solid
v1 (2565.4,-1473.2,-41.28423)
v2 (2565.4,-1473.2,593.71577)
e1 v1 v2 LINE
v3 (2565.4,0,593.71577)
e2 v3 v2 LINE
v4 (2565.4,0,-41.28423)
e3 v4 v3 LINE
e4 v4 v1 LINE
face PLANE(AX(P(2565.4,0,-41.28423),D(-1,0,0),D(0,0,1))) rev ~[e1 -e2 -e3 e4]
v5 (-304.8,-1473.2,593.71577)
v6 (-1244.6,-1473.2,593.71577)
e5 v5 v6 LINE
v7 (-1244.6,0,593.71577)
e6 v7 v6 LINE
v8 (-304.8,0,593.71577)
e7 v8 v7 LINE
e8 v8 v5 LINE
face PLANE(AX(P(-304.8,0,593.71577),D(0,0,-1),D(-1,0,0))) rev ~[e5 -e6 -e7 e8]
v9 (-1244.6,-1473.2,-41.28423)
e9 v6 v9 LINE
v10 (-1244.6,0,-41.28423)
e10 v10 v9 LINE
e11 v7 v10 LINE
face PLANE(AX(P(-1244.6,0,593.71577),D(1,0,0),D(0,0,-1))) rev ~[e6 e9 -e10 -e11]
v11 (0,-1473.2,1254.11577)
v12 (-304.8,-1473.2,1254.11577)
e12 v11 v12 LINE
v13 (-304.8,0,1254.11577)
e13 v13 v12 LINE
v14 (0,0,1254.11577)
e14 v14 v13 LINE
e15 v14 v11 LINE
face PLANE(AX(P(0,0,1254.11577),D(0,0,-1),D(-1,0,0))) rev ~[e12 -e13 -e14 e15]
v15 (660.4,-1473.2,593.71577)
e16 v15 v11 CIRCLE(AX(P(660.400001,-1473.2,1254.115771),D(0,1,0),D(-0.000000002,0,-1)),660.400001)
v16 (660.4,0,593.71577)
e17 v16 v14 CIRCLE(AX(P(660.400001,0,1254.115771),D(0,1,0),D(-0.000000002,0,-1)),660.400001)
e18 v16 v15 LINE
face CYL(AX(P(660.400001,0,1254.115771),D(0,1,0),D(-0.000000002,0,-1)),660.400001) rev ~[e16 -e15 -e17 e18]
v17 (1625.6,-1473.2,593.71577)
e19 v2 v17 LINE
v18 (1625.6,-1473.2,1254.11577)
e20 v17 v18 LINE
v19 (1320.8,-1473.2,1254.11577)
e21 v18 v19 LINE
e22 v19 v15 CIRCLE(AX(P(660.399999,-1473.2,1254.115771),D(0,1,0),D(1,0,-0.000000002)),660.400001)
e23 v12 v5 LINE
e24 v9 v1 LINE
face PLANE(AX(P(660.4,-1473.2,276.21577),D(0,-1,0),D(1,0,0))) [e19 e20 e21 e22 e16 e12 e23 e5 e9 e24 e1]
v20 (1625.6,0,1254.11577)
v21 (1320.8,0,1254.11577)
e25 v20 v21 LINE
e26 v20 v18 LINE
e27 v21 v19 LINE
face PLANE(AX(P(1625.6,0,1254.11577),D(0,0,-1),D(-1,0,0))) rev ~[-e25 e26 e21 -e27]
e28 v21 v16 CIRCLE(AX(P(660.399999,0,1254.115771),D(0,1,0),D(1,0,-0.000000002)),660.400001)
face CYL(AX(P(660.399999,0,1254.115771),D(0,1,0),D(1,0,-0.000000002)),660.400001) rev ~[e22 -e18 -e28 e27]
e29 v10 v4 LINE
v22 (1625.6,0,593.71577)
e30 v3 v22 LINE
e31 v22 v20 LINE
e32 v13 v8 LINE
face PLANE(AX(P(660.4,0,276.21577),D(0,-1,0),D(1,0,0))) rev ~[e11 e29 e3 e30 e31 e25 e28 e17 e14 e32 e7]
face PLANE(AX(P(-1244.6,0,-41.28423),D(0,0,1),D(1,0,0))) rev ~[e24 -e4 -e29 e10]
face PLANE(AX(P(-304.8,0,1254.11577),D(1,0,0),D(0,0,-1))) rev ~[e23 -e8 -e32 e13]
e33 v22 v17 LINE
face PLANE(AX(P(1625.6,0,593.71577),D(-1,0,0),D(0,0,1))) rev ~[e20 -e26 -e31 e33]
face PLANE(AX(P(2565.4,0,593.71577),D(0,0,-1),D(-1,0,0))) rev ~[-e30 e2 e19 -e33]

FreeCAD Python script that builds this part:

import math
import FreeCAD as App
import Part
import Sketcher
Q = App.Units.Quantity

doc = App.newDocument("Part")
params = doc.addObject("Spreadsheet::Sheet", "Params")
for row, (alias, value) in enumerate([
    ("sketch1_radius", "26 in"),
    ("sketch1_width", "150 in"),
    ("sketch1_width2", "37 in"),
    ("sketch1_height", "25 in"),
    ("pad1_length", "58 in"),
], start=1):
    params.set(f"A{row}", alias)
    params.set(f"B{row}", "=" + value)
    params.setAlias(f"B{row}", alias)

body = doc.addObject("PartDesign::Body", "Body")

# Sketch on XZ plane
sketch1 = body.newObject("Sketcher::SketchObject", "Sketch")
sketch1.AttachmentSupport = (doc.getObject("XZ_Plane"), [""])
sketch1.MapMode = "FlatFace"
sketch1.addGeometry(Part.LineSegment(App.Vector(-1245, 594, 0), App.Vector(-1245, -41, 0)), False)
sketch1.addGeometry(Part.LineSegment(App.Vector(-1245, -41, 0), App.Vector(2565, -41, 0)), False)
sketch1.addGeometry(Part.LineSegment(App.Vector(2565, -41, 0), App.Vector(2565, 594, 0)), False)
sketch1.addGeometry(Part.LineSegment(App.Vector(2565, 594, 0), App.Vector(1626, 594, 0)), False)
sketch1.addGeometry(Part.LineSegment(App.Vector(1626, 594, 0), App.Vector(1626, 1254, 0)), False)
sketch1.addGeometry(Part.LineSegment(App.Vector(1626, 1254, 0), App.Vector(1321, 1254, 0)), False)
sketch1.addGeometry(Part.ArcOfCircle(Part.Circle(App.Vector(660, 1254, 0), App.Vector(0, 0, 1), 660), math.radians(-90), math.radians(0)), False)
sketch1.addGeometry(Part.ArcOfCircle(Part.Circle(App.Vector(660, 1254, 0), App.Vector(0, 0, 1), 660), math.radians(-180), math.radians(-90)), False)
sketch1.addGeometry(Part.LineSegment(App.Vector(0, 1254, 0), App.Vector(-305, 1254, 0)), False)
sketch1.addGeometry(Part.LineSegment(App.Vector(-305, 1254, 0), App.Vector(-305, 594, 0)), False)
sketch1.addGeometry(Part.LineSegment(App.Vector(-305, 594, 0), App.Vector(-1245, 594, 0)), False)
sketch1.addConstraint(Sketcher.Constraint("Coincident", 0, 2, 1, 1))
sketch1.addConstraint(Sketcher.Constraint("Coincident", 1, 2, 2, 1))
sketch1.addConstraint(Sketcher.Constraint("Coincident", 2, 2, 3, 1))
sketch1.addConstraint(Sketcher.Constraint("Coincident", 3, 2, 4, 1))
sketch1.addConstraint(Sketcher.Constraint("Coincident", 4, 2, 5, 1))
sketch1.addConstraint(Sketcher.Constraint("Coincident", 5, 2, 6, 2))
sketch1.addConstraint(Sketcher.Constraint("Coincident", 6, 1, 7, 2))
sketch1.addConstraint(Sketcher.Constraint("Coincident", 7, 1, 8, 1))
sketch1.addConstraint(Sketcher.Constraint("Coincident", 8, 2, 9, 1))
sketch1.addConstraint(Sketcher.Constraint("Coincident", 9, 2, 10, 1))
sketch1.addConstraint(Sketcher.Constraint("Coincident", 10, 2, 0, 1))
sketch1.addConstraint(Sketcher.Constraint("Vertical", 0))
sketch1.addConstraint(Sketcher.Constraint("Horizontal", 1))
sketch1.addConstraint(Sketcher.Constraint("Vertical", 2))
sketch1.addConstraint(Sketcher.Constraint("Horizontal", 3))
sketch1.addConstraint(Sketcher.Constraint("Vertical", 4))
sketch1.addConstraint(Sketcher.Constraint("Horizontal", 5))
sketch1.addConstraint(Sketcher.Constraint("Horizontal", 8))
sketch1.addConstraint(Sketcher.Constraint("Vertical", 9))
sketch1.addConstraint(Sketcher.Constraint("Horizontal", 10))
sketch1.addConstraint(Sketcher.Constraint("Coincident", 7, 3, 6, 3))
sketch1.addConstraint(Sketcher.Constraint("PointOnObject", 7, 1, -2))
sketch1.addConstraint(Sketcher.Constraint("Horizontal", 7, 3, 4, 2))
sketch1.addConstraint(Sketcher.Constraint("Horizontal", 3, 2, 6, 1))
sketch1.addConstraint(Sketcher.Constraint("Horizontal", 6, 1, 9, 2))
sketch1.addConstraint(Sketcher.Constraint("Vertical", 7, 3, 6, 1))
sketch1.addConstraint(Sketcher.Constraint("Equal", 5, 8))
sketch1.addConstraint(Sketcher.Constraint("Equal", 3, 10))
sketch1.addConstraint(Sketcher.Constraint("Equal", 4, 9))
sketch1.addConstraint(Sketcher.Constraint("Radius", 6, Q("26 in")))
sketch1.addConstraint(Sketcher.Constraint("DistanceX", 1, 1, 1, 2, Q("150 in")))
sketch1.addConstraint(Sketcher.Constraint("DistanceX", 3, 2, 3, 1, Q("37 in")))
sketch1.addConstraint(Sketcher.Constraint("DistanceY", 0, 2, 0, 1, Q("25 in")))
sketch1.addConstraint(Sketcher.Constraint("DistanceY", -1, 1, 6, 3, Q("1254.115771 mm")))
sketch1.setExpression("Constraints[29]", "Params.sketch1_radius")
sketch1.setExpression("Constraints[30]", "Params.sketch1_width")
sketch1.setExpression("Constraints[31]", "Params.sketch1_width2")
sketch1.setExpression("Constraints[32]", "Params.sketch1_height")
pad1 = body.newObject("PartDesign::Pad", "Pad")
pad1.Profile = sketch1
pad1.setExpression("Length", "Params.pad1_length")

doc.recompute()
